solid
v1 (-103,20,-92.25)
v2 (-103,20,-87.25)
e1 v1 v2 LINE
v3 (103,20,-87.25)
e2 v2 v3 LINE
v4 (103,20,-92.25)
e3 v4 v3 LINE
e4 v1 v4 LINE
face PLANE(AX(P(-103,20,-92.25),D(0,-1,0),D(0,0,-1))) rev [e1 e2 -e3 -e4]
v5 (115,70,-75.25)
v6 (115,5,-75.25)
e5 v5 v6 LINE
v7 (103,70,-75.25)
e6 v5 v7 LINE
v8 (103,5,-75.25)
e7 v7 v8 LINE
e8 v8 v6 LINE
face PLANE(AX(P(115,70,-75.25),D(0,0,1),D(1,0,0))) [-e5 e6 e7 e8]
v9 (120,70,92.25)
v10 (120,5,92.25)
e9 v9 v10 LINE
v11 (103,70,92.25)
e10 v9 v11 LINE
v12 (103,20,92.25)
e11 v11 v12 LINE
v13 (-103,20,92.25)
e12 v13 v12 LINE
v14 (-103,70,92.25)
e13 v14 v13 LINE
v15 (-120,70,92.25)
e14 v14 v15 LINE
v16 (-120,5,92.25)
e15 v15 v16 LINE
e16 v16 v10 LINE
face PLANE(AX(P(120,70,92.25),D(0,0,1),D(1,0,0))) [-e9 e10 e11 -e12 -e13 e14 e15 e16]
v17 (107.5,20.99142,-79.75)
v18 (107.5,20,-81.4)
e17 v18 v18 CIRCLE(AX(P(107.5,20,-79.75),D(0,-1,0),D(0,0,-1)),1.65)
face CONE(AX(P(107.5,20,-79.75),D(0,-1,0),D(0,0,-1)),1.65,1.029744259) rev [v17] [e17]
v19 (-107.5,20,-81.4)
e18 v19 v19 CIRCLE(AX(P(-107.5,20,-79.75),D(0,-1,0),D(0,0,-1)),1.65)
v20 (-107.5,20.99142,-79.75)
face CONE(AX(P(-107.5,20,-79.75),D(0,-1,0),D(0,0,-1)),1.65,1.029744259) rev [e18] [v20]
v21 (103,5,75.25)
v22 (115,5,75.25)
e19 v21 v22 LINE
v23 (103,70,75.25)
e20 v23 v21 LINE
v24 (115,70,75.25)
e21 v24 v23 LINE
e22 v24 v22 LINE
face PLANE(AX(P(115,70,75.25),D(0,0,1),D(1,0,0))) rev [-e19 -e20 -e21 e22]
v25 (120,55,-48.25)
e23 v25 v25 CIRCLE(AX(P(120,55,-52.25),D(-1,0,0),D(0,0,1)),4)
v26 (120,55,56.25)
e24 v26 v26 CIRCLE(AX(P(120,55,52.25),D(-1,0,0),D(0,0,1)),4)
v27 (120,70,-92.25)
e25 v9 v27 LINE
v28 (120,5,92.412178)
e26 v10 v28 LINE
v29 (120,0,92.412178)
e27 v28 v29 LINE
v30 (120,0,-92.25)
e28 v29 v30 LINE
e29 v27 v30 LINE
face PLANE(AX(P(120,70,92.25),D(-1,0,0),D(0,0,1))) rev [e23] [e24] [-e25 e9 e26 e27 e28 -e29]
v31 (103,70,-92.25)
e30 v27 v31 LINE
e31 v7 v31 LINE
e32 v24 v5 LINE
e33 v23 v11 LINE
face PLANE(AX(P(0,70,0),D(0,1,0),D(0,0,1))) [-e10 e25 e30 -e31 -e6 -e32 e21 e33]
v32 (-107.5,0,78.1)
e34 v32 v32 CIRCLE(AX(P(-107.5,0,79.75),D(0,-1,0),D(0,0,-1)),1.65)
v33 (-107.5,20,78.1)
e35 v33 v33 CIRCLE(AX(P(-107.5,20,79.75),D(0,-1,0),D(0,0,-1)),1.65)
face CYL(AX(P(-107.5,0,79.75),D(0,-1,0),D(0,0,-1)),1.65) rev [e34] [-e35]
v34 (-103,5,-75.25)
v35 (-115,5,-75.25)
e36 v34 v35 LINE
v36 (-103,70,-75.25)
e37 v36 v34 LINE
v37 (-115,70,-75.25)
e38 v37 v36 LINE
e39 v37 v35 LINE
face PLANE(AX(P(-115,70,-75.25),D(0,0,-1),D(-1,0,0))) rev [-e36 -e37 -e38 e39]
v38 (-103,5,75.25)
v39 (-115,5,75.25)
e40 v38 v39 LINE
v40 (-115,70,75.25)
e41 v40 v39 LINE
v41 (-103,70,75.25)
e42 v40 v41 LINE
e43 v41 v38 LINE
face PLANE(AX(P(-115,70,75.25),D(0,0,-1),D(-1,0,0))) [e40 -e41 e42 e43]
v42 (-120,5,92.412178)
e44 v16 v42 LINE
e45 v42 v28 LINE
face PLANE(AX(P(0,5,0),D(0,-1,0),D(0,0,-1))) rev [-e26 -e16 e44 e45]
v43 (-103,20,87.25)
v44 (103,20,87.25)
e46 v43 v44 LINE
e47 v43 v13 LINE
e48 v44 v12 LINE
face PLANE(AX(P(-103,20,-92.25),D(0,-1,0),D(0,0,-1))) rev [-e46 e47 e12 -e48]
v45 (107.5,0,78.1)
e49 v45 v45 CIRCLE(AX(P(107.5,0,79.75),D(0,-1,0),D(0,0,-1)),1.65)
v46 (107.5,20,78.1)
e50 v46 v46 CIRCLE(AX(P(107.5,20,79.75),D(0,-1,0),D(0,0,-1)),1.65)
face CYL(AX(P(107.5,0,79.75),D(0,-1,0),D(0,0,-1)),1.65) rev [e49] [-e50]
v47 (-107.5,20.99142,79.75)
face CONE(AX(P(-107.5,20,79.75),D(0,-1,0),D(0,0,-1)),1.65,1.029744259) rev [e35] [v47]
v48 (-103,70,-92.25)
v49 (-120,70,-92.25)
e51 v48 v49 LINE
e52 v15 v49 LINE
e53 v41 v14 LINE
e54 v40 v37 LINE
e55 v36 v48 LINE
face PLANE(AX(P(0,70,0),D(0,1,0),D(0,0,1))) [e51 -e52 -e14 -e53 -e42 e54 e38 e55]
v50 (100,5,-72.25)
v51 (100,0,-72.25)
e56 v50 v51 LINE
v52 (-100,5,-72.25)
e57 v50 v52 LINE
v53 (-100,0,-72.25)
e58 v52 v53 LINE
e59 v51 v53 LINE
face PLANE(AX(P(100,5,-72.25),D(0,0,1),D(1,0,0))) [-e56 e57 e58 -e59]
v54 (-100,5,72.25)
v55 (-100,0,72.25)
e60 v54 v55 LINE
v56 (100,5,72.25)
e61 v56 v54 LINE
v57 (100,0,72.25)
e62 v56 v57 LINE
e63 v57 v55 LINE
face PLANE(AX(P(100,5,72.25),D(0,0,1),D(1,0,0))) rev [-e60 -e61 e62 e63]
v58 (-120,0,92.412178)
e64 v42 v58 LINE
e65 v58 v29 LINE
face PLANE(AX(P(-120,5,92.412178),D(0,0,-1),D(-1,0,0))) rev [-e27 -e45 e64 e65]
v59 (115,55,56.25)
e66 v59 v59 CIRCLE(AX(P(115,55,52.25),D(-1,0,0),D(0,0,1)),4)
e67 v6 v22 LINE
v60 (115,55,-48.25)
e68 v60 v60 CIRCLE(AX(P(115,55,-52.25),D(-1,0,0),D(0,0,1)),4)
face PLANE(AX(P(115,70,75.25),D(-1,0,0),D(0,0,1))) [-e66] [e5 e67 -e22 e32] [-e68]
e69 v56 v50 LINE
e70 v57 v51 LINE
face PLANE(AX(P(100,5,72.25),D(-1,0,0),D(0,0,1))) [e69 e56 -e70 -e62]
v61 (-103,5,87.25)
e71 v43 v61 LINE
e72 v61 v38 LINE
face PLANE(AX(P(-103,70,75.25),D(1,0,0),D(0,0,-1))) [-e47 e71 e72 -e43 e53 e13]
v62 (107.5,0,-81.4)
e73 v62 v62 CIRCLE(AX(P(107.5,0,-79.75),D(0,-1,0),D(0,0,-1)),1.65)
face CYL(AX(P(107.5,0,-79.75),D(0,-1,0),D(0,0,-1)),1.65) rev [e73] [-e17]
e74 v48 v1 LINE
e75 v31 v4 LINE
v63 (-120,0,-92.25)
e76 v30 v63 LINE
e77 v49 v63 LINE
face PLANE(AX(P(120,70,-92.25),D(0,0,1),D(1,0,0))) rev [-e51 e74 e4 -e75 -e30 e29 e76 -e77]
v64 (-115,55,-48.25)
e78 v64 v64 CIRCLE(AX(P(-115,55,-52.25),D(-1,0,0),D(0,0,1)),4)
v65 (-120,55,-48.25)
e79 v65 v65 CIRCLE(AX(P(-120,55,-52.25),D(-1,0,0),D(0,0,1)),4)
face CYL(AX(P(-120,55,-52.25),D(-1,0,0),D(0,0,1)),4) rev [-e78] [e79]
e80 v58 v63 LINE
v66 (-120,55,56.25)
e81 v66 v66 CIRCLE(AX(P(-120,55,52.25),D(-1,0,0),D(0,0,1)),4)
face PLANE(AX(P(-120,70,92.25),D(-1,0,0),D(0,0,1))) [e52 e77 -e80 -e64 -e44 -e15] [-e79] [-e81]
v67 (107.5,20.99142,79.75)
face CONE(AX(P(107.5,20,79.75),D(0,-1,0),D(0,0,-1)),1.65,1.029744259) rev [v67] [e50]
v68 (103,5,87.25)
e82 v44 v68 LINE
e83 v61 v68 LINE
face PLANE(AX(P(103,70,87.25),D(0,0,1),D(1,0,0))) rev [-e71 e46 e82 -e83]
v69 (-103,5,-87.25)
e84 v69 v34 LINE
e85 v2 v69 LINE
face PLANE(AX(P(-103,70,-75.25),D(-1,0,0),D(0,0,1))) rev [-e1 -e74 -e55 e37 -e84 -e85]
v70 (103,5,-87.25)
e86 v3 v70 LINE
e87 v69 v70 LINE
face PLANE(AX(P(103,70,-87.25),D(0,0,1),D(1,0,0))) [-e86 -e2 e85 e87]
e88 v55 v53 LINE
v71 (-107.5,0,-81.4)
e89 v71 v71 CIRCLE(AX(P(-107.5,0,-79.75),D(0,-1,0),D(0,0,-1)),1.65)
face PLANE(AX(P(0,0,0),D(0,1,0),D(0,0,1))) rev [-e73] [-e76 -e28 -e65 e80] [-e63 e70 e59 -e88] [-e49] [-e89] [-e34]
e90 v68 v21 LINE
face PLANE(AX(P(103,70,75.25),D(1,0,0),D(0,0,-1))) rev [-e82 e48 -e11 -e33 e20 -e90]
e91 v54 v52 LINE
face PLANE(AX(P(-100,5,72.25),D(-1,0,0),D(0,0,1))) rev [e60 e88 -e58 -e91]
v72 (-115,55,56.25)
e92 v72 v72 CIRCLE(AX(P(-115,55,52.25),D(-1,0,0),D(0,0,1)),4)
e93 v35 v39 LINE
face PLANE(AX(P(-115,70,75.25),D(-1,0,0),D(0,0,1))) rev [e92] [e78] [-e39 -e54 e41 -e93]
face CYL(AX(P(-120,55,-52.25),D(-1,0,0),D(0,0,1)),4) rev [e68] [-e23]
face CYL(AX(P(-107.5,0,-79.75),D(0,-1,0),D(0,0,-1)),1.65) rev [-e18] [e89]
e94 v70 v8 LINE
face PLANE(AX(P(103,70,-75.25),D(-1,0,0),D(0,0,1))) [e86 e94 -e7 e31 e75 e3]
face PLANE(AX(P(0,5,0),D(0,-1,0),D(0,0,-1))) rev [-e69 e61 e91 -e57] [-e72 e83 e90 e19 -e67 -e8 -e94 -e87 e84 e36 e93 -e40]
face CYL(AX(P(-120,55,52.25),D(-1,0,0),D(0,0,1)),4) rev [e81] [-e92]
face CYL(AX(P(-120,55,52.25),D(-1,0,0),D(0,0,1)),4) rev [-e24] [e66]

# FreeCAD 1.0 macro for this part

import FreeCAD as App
import Part
import Sketcher
from FreeCAD import Vector
Q = App.Units.Quantity


def add_polygon(sketch, points):
    """Adds a closed chain of lines whose ends are joined by coincident constraints."""
    first, n = sketch.GeometryCount, len(points)
    for a, b in zip(points, points[1:] + points[:1]):
        sketch.addGeometry(Part.LineSegment(App.Vector(*a, 0), App.Vector(*b, 0)), False)
    for i in range(n):
        sketch.addConstraint(Sketcher.Constraint("Coincident", first + i, 2, first + (i + 1) % n, 1))

doc = App.newDocument("Part")
body = doc.addObject("PartDesign::Body", "Body")

# Sketch on XZ plane
sketch1 = body.newObject("Sketcher::SketchObject", "Sketch")
sketch1.AttachmentSupport = (doc.getObject("XZ_Plane"), [""])
sketch1.MapMode = "FlatFace"
add_polygon(sketch1, [(-120, -92.25), (-120, 92.25), (120, 92.25), (120, -92.25)])  # lines 0-3
add_polygon(sketch1, [(-103, -87.25), (103, -87.25), (103, -75.25), (115, -75.25), (115, 75.25), (103, 75.25), (103, 87.25), (-103, 87.25), (-103, 75.25), (-115, 75.25), (-115, -75.25), (-103, -75.25)])  # lines 4-15
sketch1.addConstraint([
    Sketcher.Constraint("Vertical", 0),
    Sketcher.Constraint("Horizontal", 1),
    Sketcher.Constraint("Vertical", 2),
    Sketcher.Constraint("Horizontal", 3),
    Sketcher.Constraint("Horizontal", 4),
    Sketcher.Constraint("Vertical", 5),
    Sketcher.Constraint("Horizontal", 6),
    Sketcher.Constraint("Vertical", 7),
    Sketcher.Constraint("Horizontal", 8),
    Sketcher.Constraint("Vertical", 9),
    Sketcher.Constraint("Horizontal", 10),
    Sketcher.Constraint("Vertical", 11),
    Sketcher.Constraint("Horizontal", 12),
    Sketcher.Constraint("Vertical", 13),
    Sketcher.Constraint("Horizontal", 14),
    Sketcher.Constraint("Vertical", 15),
    Sketcher.Constraint("Symmetric", 0, 2, 2, 2, -1, 1),
    Sketcher.Constraint("Symmetric", 4, 2, 10, 2, -1, 1),
    Sketcher.Constraint("Symmetric", 6, 2, 12, 2, -1, 1),
    Sketcher.Constraint("Symmetric", 8, 2, 14, 2, -1, 1),
    Sketcher.Constraint("Symmetric", 8, 2, 11, 2, -2),
    Sketcher.Constraint("Equal", 14, 5),
    Sketcher.Constraint("DistanceX", 1, 1, 1, 2, 240.0),
    Sketcher.Constraint("DistanceX", 4, 1, 4, 2, 206.0),
    Sketcher.Constraint("DistanceX", 6, 1, 6, 2, 12.0),
    Sketcher.Constraint("DistanceY", 0, 1, 0, 2, 184.5),
    Sketcher.Constraint("DistanceY", 7, 1, 7, 2, 150.5),
])
pad1 = body.newObject("PartDesign::Pad", "Pad")
pad1.Profile = sketch1
pad1.Length = 70
pad1.Reversed = True

# Sketch on XY plane
sketch2 = body.newObject("Sketcher::SketchObject", "Sketch001")
sketch2.AttachmentSupport = (doc.getObject("XY_Plane"), [""])
sketch2.MapMode = "FlatFace"
sketch2.AttachmentOffset = App.Placement(Vector(0, 0, 92.25), App.Rotation())
add_polygon(sketch2, [(-103, 70), (-103, 20), (103, 20), (103, 70)])  # lines 0-3
sketch2.addConstraint([
    Sketcher.Constraint("Vertical", 0),
    Sketcher.Constraint("Horizontal", 1),
    Sketcher.Constraint("Vertical", 2),
    Sketcher.Constraint("Horizontal", 3),
    Sketcher.Constraint("DistanceX", 1, 1, 1, 2, 206.0),
    Sketcher.Constraint("DistanceY", 0, 2, 0, 1, 50.0),
    Sketcher.Constraint("DistanceX", 0, 2, -1, 1, 103.0),
    Sketcher.Constraint("DistanceY", -1, 1, 0, 2, 20.0),
])
pocket1 = body.newObject("PartDesign::Pocket", "Pocket")
pocket1.Profile = sketch2
pocket1.Type = "ThroughAll"

# Sketch on XZ plane
sketch3 = body.newObject("Sketcher::SketchObject", "Sketch002")
sketch3.AttachmentSupport = (doc.getObject("XZ_Plane"), [""])
sketch3.MapMode = "FlatFace"
add_polygon(sketch3, [(-120, -92.25), (-120, 92.412178), (120, 92.412178), (120, -92.25)])  # lines 0-3
add_polygon(sketch3, [(100, 72.25), (-100, 72.25), (-100, -72.25), (100, -72.25)])  # lines 4-7
sketch3.addConstraint([
    Sketcher.Constraint("Vertical", 0),
    Sketcher.Constraint("Horizontal", 1),
    Sketcher.Constraint("Vertical", 2),
    Sketcher.Constraint("Horizontal", 3),
    Sketcher.Constraint("Horizontal", 4),
    Sketcher.Constraint("Vertical", 5),
    Sketcher.Constraint("Horizontal", 6),
    Sketcher.Constraint("Vertical", 7),
    Sketcher.Constraint("Symmetric", 4, 2, 6, 2, -1, 1),
    Sketcher.Constraint("DistanceX", 1, 1, 1, 2, 240.0),
    Sketcher.Constraint("DistanceX", 4, 2, 4, 1, 200.0),
    Sketcher.Constraint("DistanceY", 5, 2, 5, 1, 144.5),
    Sketcher.Constraint("DistanceX", 0, 2, -1, 1, 120.0),
    Sketcher.Constraint("DistanceY", 3, 2, 5, 2, 20.0),
    Sketcher.Constraint("DistanceY", 0, 1, 0, 2, 184.662178),
])
pad2 = body.newObject("PartDesign::Pad", "Pad001")
pad2.Profile = sketch3
pad2.Length = 5
pad2.Reversed = True

# Sketch on YZ plane
sketch4 = body.newObject("Sketcher::SketchObject", "Sketch003")
sketch4.AttachmentSupport = (doc.getObject("YZ_Plane"), [""])
sketch4.MapMode = "FlatFace"
sketch4.AttachmentOffset = App.Placement(Vector(0, 0, 107.5), App.Rotation())
add_polygon(sketch4, [(20.99142, -79.75), (0, -79.75), (0, -81.4), (20, -81.4)])  # lines 0-3
sketch4.addGeometry(Part.LineSegment(Vector(0, -79.75, 0), Vector(20.99142, -79.75, 0)), True)  # axis
sketch4.addConstraint([
    Sketcher.Constraint("Horizontal", 0),
    Sketcher.Constraint("Vertical", 1),
    Sketcher.Constraint("Horizontal", 2),
    Sketcher.Constraint("Horizontal", 4),
    Sketcher.Constraint("Coincident", 4, 1, 0, 2),
    Sketcher.Constraint("PointOnObject", 0, 2, -2),
    Sketcher.Constraint("Equal", 0, 4),
    Sketcher.Constraint("DistanceX", 2, 1, 2, 2, 20.0),
    Sketcher.Constraint("Angle", 3, Q("59 deg")),
    Sketcher.Constraint("DistanceY", 1, 2, 1, 1, 1.65),
    Sketcher.Constraint("DistanceY", 1, 2, -1, 1, 81.4),
])
groove = body.newObject("PartDesign::Groove", "Groove")
groove.Profile = sketch4
groove.ReferenceAxis = (sketch4, ["Axis0"])
groove.Angle = 360
doc.recompute()

mirrored = body.newObject("PartDesign::Mirrored", "Mirrored")
mirrored.Originals = [groove]
mirrored.MirrorPlane = (doc.getObject("YZ_Plane"), [""])
body.Tip = mirrored
doc.recompute()

mirrored2 = body.newObject("PartDesign::Mirrored", "Mirrored001")
mirrored2.Originals = [groove]
mirrored2.MirrorPlane = (doc.getObject("XY_Plane"), [""])
body.Tip = mirrored2

# Sketch on YZ plane
sketch5 = body.newObject("Sketcher::SketchObject", "Sketch004")
sketch5.AttachmentSupport = (doc.getObject("YZ_Plane"), [""])
sketch5.MapMode = "FlatFace"
sketch5.AttachmentOffset = App.Placement(Vector(0, 0, -107.5), App.Rotation())
add_polygon(sketch5, [(20.99142, 79.75), (0, 79.75), (0, 81.4), (20, 81.4)])  # lines 0-3
sketch5.addGeometry(Part.LineSegment(Vector(0, 79.75, 0), Vector(20.99142, 79.75, 0)), True)  # axis
sketch5.addConstraint([
    Sketcher.Constraint("Horizontal", 0),
    Sketcher.Constraint("Vertical", 1),
    Sketcher.Constraint("Horizontal", 2),
    Sketcher.Constraint("Horizontal", 4),
    Sketcher.Constraint("Coincident", 4, 1, 0, 2),
    Sketcher.Constraint("PointOnObject", 0, 2, -2),
    Sketcher.Constraint("Equal", 0, 4),
    Sketcher.Constraint("DistanceX", 2, 1, 2, 2, 20.0),
    Sketcher.Constraint("Angle", 3, Q("-59 deg")),
    Sketcher.Constraint("DistanceY", 1, 1, 1, 2, 1.65),
    Sketcher.Constraint("DistanceY", -1, 1, 1, 2, 81.4),
])
groove2 = body.newObject("PartDesign::Groove", "Groove001")
groove2.Profile = sketch5
groove2.ReferenceAxis = (sketch5, ["Axis0"])
groove2.Angle = 360

# Sketch on YZ plane
sketch6 = body.newObject("Sketcher::SketchObject", "Sketch005")
sketch6.AttachmentSupport = (doc.getObject("YZ_Plane"), [""])
sketch6.MapMode = "FlatFace"
sketch6.AttachmentOffset = App.Placement(Vector(0, 0, -120), App.Rotation())
sketch6.addGeometry(Part.Circle(Vector(55, -52.25, 0), Vector(0, 0, 1), 4), False)
sketch6.addConstraint([
    Sketcher.Constraint("Diameter", 0, 8.0),
    Sketcher.Constraint("DistanceX", -1, 1, 0, 3, 55.0),
    Sketcher.Constraint("DistanceY", 0, 3, -1, 1, 52.25),
])
doc.recompute()
hole = body.newObject("PartDesign::Hole", "Hole")
hole.Profile = sketch6
hole.ThreadType = "None"
hole.Diameter = 8
hole.DepthType = "ThroughAll"
hole.Reversed = True
doc.recompute()

mirrored3 = body.newObject("PartDesign::Mirrored", "Mirrored002")
mirrored3.Originals = [hole]
mirrored3.MirrorPlane = (doc.getObject("XY_Plane"), [""])
body.Tip = mirrored3

doc.recompute()
